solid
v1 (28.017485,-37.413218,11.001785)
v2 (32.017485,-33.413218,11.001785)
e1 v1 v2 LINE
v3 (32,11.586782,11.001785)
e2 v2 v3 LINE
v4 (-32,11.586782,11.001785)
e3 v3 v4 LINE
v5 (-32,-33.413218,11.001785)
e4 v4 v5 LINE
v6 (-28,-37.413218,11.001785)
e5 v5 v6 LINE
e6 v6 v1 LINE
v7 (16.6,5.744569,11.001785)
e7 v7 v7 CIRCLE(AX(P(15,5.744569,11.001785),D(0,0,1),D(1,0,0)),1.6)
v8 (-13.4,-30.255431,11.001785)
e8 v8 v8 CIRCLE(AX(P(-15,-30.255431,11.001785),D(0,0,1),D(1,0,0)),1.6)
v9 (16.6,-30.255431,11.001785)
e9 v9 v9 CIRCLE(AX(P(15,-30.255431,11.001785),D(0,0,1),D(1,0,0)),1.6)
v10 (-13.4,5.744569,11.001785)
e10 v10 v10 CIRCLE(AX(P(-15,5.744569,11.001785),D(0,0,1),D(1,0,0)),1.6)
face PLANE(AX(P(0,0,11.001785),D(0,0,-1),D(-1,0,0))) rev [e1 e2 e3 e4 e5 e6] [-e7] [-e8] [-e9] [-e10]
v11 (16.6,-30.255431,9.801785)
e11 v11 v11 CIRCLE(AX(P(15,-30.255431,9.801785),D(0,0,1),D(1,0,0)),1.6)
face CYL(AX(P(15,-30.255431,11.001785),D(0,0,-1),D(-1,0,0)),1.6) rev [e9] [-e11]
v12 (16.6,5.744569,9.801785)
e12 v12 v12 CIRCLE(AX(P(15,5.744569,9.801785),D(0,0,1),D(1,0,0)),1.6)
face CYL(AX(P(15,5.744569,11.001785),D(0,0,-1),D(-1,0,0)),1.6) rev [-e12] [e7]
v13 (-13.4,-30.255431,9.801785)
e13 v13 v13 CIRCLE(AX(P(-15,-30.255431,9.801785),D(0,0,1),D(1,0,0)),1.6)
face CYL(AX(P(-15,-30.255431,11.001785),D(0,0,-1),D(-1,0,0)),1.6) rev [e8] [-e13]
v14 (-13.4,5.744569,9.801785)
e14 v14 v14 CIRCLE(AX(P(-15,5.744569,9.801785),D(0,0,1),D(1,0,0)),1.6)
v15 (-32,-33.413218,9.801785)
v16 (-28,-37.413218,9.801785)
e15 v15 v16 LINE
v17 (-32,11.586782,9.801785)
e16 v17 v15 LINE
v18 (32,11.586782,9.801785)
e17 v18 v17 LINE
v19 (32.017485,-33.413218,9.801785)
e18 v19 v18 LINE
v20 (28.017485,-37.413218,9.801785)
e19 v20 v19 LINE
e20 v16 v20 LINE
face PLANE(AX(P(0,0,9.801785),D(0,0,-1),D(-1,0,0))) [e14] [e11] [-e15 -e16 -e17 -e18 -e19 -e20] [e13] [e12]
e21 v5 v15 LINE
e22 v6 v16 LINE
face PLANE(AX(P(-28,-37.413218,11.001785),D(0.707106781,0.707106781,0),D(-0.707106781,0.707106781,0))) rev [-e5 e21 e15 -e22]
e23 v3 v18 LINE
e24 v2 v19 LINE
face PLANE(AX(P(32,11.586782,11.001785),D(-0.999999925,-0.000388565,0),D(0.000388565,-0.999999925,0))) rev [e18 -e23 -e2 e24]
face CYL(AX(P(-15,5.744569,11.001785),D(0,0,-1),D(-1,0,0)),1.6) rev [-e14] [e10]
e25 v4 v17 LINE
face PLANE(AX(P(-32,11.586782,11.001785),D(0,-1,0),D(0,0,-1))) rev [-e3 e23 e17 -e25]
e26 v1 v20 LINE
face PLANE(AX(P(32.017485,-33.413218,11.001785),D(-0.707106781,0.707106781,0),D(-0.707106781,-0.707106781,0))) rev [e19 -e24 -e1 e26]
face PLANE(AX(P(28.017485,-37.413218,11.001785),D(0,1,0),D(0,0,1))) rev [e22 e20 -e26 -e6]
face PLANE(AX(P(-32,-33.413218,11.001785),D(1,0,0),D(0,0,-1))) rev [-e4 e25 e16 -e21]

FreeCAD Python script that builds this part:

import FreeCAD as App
import Part
import Sketcher

V = App.Vector
Q = App.Units.Quantity

doc = App.newDocument("Part")
body = doc.addObject("PartDesign::Body", "Body")

sketch1 = doc.addObject("Sketcher::SketchObject", "Sketch")
body.addObject(sketch1)
sketch1.AttachmentSupport = (doc.XY_Plane, [""])
sketch1.MapMode = "FlatFace"
sketch1.AttachmentOffset = App.Placement(V(0, 0, 9.801785), App.Rotation())
sketch1.addGeometry([
    Part.LineSegment(V(-32, -33.4, 0), V(-28, -37.4, 0)),
    Part.LineSegment(V(-28, -37.4, 0), V(28, -37.4, 0)),
    Part.LineSegment(V(28, -37.4, 0), V(32, -33.4, 0)),
    Part.LineSegment(V(32, -33.4, 0), V(32, 11.6, 0)),
    Part.LineSegment(V(32, 11.6, 0), V(-32, 11.6, 0)),
    Part.LineSegment(V(-32, 11.6, 0), V(-32, -33.4, 0)),
    Part.Circle(V(15, -30.3, 0), V(0, 0, 1), 1.6),
    Part.Circle(V(-15, -30.3, 0), V(0, 0, 1), 1.6),
    Part.Circle(V(15, 5.7, 0), V(0, 0, 1), 1.6),
    Part.Circle(V(-15, 5.7, 0), V(0, 0, 1), 1.6),
], False)
sketch1.addConstraint([
    Sketcher.Constraint("Coincident", 0, 2, 1, 1),
    Sketcher.Constraint("Coincident", 1, 2, 2, 1),
    Sketcher.Constraint("Coincident", 2, 2, 3, 1),
    Sketcher.Constraint("Coincident", 3, 2, 4, 1),
    Sketcher.Constraint("Coincident", 4, 2, 5, 1),
    Sketcher.Constraint("Coincident", 5, 2, 0, 1),
    Sketcher.Constraint("Horizontal", 1),
    Sketcher.Constraint("Horizontal", 4),
    Sketcher.Constraint("Vertical", 5),
    Sketcher.Constraint("Equal", 6, 7),
    Sketcher.Constraint("Equal", 7, 8),
    Sketcher.Constraint("Equal", 8, 9),
    Sketcher.Constraint("Symmetric", 6, 3, 7, 3, -2),
    Sketcher.Constraint("Symmetric", 8, 3, 9, 3, -2),
    Sketcher.Constraint("Perpendicular", 0, 2),
    Sketcher.Constraint("Horizontal", 2, 2, 5, 2),
    Sketcher.Constraint("Vertical", 6, 3, 8, 3),
    Sketcher.Constraint("Equal", 0, 2),
    Sketcher.Constraint("Diameter", 6, Q("3.2 mm")),
    Sketcher.Constraint("DistanceX", 4, 2, 4, 1, Q("64 mm")),
    Sketcher.Constraint("DistanceY", 5, 2, 5, 1, Q("45 mm")),
    Sketcher.Constraint("DistanceX", -1, 1, 6, 3, Q("15 mm")),
    Sketcher.Constraint("DistanceX", 0, 2, -1, 1, Q("28 mm")),
    Sketcher.Constraint("DistanceX", -1, 1, 3, 2, Q("32 mm")),
    Sketcher.Constraint("DistanceY", 6, 3, 8, 3, Q("36 mm")),
    Sketcher.Constraint("DistanceX", 1, 1, 1, 2, Q("56.017485 mm")),
    Sketcher.Constraint("DistanceY", 6, 3, -1, 1, Q("30.255431 mm")),
    Sketcher.Constraint("DistanceY", 0, 2, -1, 1, Q("37.413218 mm")),
])
pad1 = doc.addObject("PartDesign::Pad", "Pad")
body.addObject(pad1)
pad1.Profile = sketch1
pad1.Length = 1.2

doc.recompute()
